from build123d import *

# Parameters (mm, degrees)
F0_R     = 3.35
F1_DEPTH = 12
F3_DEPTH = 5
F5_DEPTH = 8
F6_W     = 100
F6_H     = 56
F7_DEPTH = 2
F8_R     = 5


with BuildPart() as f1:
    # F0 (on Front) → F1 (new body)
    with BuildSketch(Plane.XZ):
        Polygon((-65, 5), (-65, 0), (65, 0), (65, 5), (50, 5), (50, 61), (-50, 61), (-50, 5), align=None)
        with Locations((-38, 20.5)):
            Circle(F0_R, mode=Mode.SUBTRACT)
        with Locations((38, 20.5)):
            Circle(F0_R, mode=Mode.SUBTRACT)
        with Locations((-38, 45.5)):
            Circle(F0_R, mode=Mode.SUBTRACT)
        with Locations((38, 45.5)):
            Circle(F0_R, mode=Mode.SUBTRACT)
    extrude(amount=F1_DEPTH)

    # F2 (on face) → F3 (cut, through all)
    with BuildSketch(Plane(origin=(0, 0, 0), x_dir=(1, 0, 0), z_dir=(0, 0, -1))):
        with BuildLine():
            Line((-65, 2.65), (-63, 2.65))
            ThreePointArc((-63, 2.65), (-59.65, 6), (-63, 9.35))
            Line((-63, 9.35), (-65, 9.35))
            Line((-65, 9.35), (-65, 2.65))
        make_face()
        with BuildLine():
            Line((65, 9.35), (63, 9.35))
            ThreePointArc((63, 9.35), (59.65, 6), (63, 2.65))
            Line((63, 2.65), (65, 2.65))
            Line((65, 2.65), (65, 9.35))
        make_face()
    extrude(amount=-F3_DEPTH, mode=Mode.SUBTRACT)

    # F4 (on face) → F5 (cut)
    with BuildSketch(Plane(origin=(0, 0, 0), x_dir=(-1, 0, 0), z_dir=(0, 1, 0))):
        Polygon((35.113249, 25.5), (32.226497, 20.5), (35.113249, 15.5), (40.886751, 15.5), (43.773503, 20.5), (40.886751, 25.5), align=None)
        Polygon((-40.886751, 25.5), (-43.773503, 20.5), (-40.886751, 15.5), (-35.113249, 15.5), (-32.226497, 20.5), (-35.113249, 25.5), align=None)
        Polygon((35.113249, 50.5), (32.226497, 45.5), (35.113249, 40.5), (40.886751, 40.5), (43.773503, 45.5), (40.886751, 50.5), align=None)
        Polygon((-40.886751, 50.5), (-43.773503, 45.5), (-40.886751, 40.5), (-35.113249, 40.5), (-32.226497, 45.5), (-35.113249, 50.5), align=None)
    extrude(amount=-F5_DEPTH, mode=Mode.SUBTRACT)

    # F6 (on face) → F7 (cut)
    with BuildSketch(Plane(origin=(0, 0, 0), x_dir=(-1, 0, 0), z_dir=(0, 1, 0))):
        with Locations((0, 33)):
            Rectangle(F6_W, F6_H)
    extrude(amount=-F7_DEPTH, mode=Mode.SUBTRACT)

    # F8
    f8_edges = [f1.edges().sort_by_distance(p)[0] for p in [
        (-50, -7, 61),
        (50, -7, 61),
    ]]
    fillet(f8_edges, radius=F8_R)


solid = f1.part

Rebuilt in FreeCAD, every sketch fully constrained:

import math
import FreeCAD as App
import Part
import Sketcher
Q = App.Units.Quantity


def edges_at(feature, points):
    """Names of the edges that pass closest to the given points."""
    edges = feature.Shape.Edges
    near = lambda p: min(range(len(edges)), key=lambda i: edges[i].distToShape(Part.Vertex(*p))[0])
    return sorted({f"Edge{near(p) + 1}" for p in points})

doc = App.newDocument("Part")
params = doc.addObject("Spreadsheet::Sheet", "Params")
for row, (alias, value) in enumerate([
    ("sketch1_diameter", "6.7 mm"),
    ("sketch1_width", "130 mm"),
    ("sketch1_width2", "15 mm"),
    ("sketch1_height", "5 mm"),
    ("sketch1_height2", "56 mm"),
    ("pad1_length", "12 mm"),
    ("sketch2_width", "2 mm"),
    ("sketch2_radius", "3.35 mm"),
    ("pocket2_length", "8 mm"),
    ("sketch4_width", "100 mm"),
    ("sketch4_height", "56 mm"),
    ("pocket3_length", "2 mm"),
    ("fillet_radius", "5 mm"),
], start=1):
    params.set(f"A{row}", alias)
    params.set(f"B{row}", "=" + value)
    params.setAlias(f"B{row}", alias)

body = doc.addObject("PartDesign::Body", "Body")

# Sketch on XZ plane
sketch1 = body.newObject("Sketcher::SketchObject", "Sketch")
sketch1.AttachmentSupport = (doc.getObject("XZ_Plane"), [""])
sketch1.MapMode = "FlatFace"
sketch1.addGeometry(Part.LineSegment(App.Vector(-65, 5, 0), App.Vector(-65, 0, 0)), False)
sketch1.addGeometry(Part.LineSegment(App.Vector(-65, 0, 0), App.Vector(65, 0, 0)), False)
sketch1.addGeometry(Part.LineSegment(App.Vector(65, 0, 0), App.Vector(65, 5, 0)), False)
sketch1.addGeometry(Part.LineSegment(App.Vector(65, 5, 0), App.Vector(50, 5, 0)), False)
sketch1.addGeometry(Part.LineSegment(App.Vector(50, 5, 0), App.Vector(50, 61, 0)), False)
sketch1.addGeometry(Part.LineSegment(App.Vector(50, 61, 0), App.Vector(-50, 61, 0)), False)
sketch1.addGeometry(Part.LineSegment(App.Vector(-50, 61, 0), App.Vector(-50, 5, 0)), False)
sketch1.addGeometry(Part.LineSegment(App.Vector(-50, 5, 0), App.Vector(-65, 5, 0)), False)
sketch1.addGeometry(Part.Circle(App.Vector(-38, 20.5, 0), App.Vector(0, 0, 1), 3.4), False)
sketch1.addGeometry(Part.Circle(App.Vector(38, 20.5, 0), App.Vector(0, 0, 1), 3.4), False)
sketch1.addGeometry(Part.Circle(App.Vector(-38, 45.5, 0), App.Vector(0, 0, 1), 3.4), False)
sketch1.addGeometry(Part.Circle(App.Vector(38, 45.5, 0), App.Vector(0, 0, 1), 3.4), False)
sketch1.addConstraint(Sketcher.Constraint("Coincident", 0, 2, 1, 1))
sketch1.addConstraint(Sketcher.Constraint("Coincident", 1, 2, 2, 1))
sketch1.addConstraint(Sketcher.Constraint("Coincident", 2, 2, 3, 1))
sketch1.addConstraint(Sketcher.Constraint("Coincident", 3, 2, 4, 1))
sketch1.addConstraint(Sketcher.Constraint("Coincident", 4, 2, 5, 1))
sketch1.addConstraint(Sketcher.Constraint("Coincident", 5, 2, 6, 1))
sketch1.addConstraint(Sketcher.Constraint("Coincident", 6, 2, 7, 1))
sketch1.addConstraint(Sketcher.Constraint("Coincident", 7, 2, 0, 1))
sketch1.addConstraint(Sketcher.Constraint("Vertical", 0))
sketch1.addConstraint(Sketcher.Constraint("Horizontal", 1))
sketch1.addConstraint(Sketcher.Constraint("Vertical", 2))
sketch1.addConstraint(Sketcher.Constraint("Horizontal", 3))
sketch1.addConstraint(Sketcher.Constraint("Vertical", 4))
sketch1.addConstraint(Sketcher.Constraint("Horizontal", 5))
sketch1.addConstraint(Sketcher.Constraint("Vertical", 6))
sketch1.addConstraint(Sketcher.Constraint("Horizontal", 7))
sketch1.addConstraint(Sketcher.Constraint("Equal", 8, 9))
sketch1.addConstraint(Sketcher.Constraint("Equal", 9, 10))
sketch1.addConstraint(Sketcher.Constraint("Equal", 10, 11))
sketch1.addConstraint(Sketcher.Constraint("Symmetric", 0, 2, 1, 2, -1, 1))
sketch1.addConstraint(Sketcher.Constraint("Symmetric", 8, 3, 9, 3, -2))
sketch1.addConstraint(Sketcher.Constraint("Symmetric", 10, 3, 11, 3, -2))
sketch1.addConstraint(Sketcher.Constraint("Symmetric", 3, 2, 6, 2, -2))
sketch1.addConstraint(Sketcher.Constraint("Vertical", 8, 3, 10, 3))
sketch1.addConstraint(Sketcher.Constraint("Diameter", 8, Q("6.7 mm")))
sketch1.addConstraint(Sketcher.Constraint("DistanceX", 1, 1, 1, 2, Q("130 mm")))
sketch1.addConstraint(Sketcher.Constraint("DistanceX", 3, 2, 3, 1, Q("15 mm")))
sketch1.addConstraint(Sketcher.Constraint("DistanceY", 0, 2, 0, 1, Q("5 mm")))
sketch1.addConstraint(Sketcher.Constraint("DistanceY", 4, 1, 4, 2, Q("56 mm")))
sketch1.addConstraint(Sketcher.Constraint("DistanceX", 8, 3, -1, 1, Q("38 mm")))
sketch1.addConstraint(Sketcher.Constraint("DistanceY", 8, 3, 10, 3, Q("25 mm")))
sketch1.addConstraint(Sketcher.Constraint("DistanceY", -1, 1, 8, 3, Q("20.5 mm")))
sketch1.setExpression("Constraints[24]", "Params.sketch1_diameter")
sketch1.setExpression("Constraints[25]", "Params.sketch1_width")
sketch1.setExpression("Constraints[26]", "Params.sketch1_width2")
sketch1.setExpression("Constraints[27]", "Params.sketch1_height")
sketch1.setExpression("Constraints[28]", "Params.sketch1_height2")
pad1 = body.newObject("PartDesign::Pad", "Pad")
pad1.Profile = sketch1
pad1.setExpression("Length", "Params.pad1_length")

# Sketch on XY plane
sketch2 = body.newObject("Sketcher::SketchObject", "Sketch001")
sketch2.AttachmentSupport = (doc.getObject("XY_Plane"), [""])
sketch2.MapMode = "FlatFace"
sketch2.addGeometry(Part.LineSegment(App.Vector(-65, -2.6, 0), App.Vector(-63, -2.6, 0)), False)
sketch2.addGeometry(Part.ArcOfCircle(Part.Circle(App.Vector(-63, -6, 0), App.Vector(0, 0, 1), 3.4), math.radians(-90), math.radians(90)), False)
sketch2.addGeometry(Part.LineSegment(App.Vector(-63, -9.3, 0), App.Vector(-65, -9.3, 0)), False)
sketch2.addGeometry(Part.LineSegment(App.Vector(-65, -9.3, 0), App.Vector(-65, -2.6, 0)), False)
sketch2.addGeometry(Part.LineSegment(App.Vector(65, -9.3, 0), App.Vector(63, -9.3, 0)), False)
sketch2.addGeometry(Part.ArcOfCircle(Part.Circle(App.Vector(63, -6, 0), App.Vector(0, 0, 1), 3.4), math.radians(90), math.radians(270)), False)
sketch2.addGeometry(Part.LineSegment(App.Vector(63, -2.6, 0), App.Vector(65, -2.6, 0)), False)
sketch2.addGeometry(Part.LineSegment(App.Vector(65, -2.6, 0), App.Vector(65, -9.3, 0)), False)
sketch2.addConstraint(Sketcher.Constraint("Tangent", 0, 2, 1, 2))
sketch2.addConstraint(Sketcher.Constraint("Tangent", 1, 1, 2, 1))
sketch2.addConstraint(Sketcher.Constraint("Coincident", 2, 2, 3, 1))
sketch2.addConstraint(Sketcher.Constraint("Coincident", 3, 2, 0, 1))
sketch2.addConstraint(Sketcher.Constraint("Tangent", 4, 2, 5, 2))
sketch2.addConstraint(Sketcher.Constraint("Tangent", 5, 1, 6, 1))
sketch2.addConstraint(Sketcher.Constraint("Coincident", 6, 2, 7, 1))
sketch2.addConstraint(Sketcher.Constraint("Coincident", 7, 2, 4, 1))
sketch2.addConstraint(Sketcher.Constraint("Horizontal", 0))
sketch2.addConstraint(Sketcher.Constraint("Horizontal", 2))
sketch2.addConstraint(Sketcher.Constraint("Vertical", 3))
sketch2.addConstraint(Sketcher.Constraint("Horizontal", 4))
sketch2.addConstraint(Sketcher.Constraint("Horizontal", 6))
sketch2.addConstraint(Sketcher.Constraint("Vertical", 7))
sketch2.addConstraint(Sketcher.Constraint("Equal", 1, 5))
sketch2.addConstraint(Sketcher.Constraint("Symmetric", 1, 3, 5, 3, -2))
sketch2.addConstraint(Sketcher.Constraint("Equal", 2, 4))
sketch2.addConstraint(Sketcher.Constraint("DistanceX", 0, 1, 0, 2, Q("2 mm")))
sketch2.addConstraint(Sketcher.Constraint("Radius", 1, Q("3.35 mm")))
sketch2.addConstraint(Sketcher.Constraint("DistanceX", 1, 3, -1, 1, Q("63 mm")))
sketch2.addConstraint(Sketcher.Constraint("DistanceY", 1, 3, -1, 1, Q("6 mm")))
sketch2.setExpression("Constraints[17]", "Params.sketch2_width")
sketch2.setExpression("Constraints[18]", "Params.sketch2_radius")
pocket1 = body.newObject("PartDesign::Pocket", "Pocket")
pocket1.Profile = sketch2
pocket1.Type = "ThroughAll"
pocket1.Reversed = True

# Sketch on XZ plane
sketch3 = body.newObject("Sketcher::SketchObject", "Sketch002")
sketch3.AttachmentSupport = (doc.getObject("XZ_Plane"), [""])
sketch3.MapMode = "FlatFace"
sketch3.addGeometry(Part.LineSegment(App.Vector(-35, 26, 0), App.Vector(-32, 20, 0)), False)
sketch3.addGeometry(Part.LineSegment(App.Vector(-32, 20, 0), App.Vector(-35, 16, 0)), False)
sketch3.addGeometry(Part.LineSegment(App.Vector(-35, 16, 0), App.Vector(-41, 16, 0)), False)
sketch3.addGeometry(Part.LineSegment(App.Vector(-41, 16, 0), App.Vector(-44, 20, 0)), False)
sketch3.addGeometry(Part.LineSegment(App.Vector(-44, 20, 0), App.Vector(-41, 26, 0)), False)
sketch3.addGeometry(Part.LineSegment(App.Vector(-41, 26, 0), App.Vector(-35, 26, 0)), False)
sketch3.addGeometry(Part.LineSegment(App.Vector(41, 26, 0), App.Vector(44, 20, 0)), False)
sketch3.addGeometry(Part.LineSegment(App.Vector(44, 20, 0), App.Vector(41, 16, 0)), False)
sketch3.addGeometry(Part.LineSegment(App.Vector(41, 16, 0), App.Vector(35, 16, 0)), False)
sketch3.addGeometry(Part.LineSegment(App.Vector(35, 16, 0), App.Vector(32, 20, 0)), False)
sketch3.addGeometry(Part.LineSegment(App.Vector(32, 20, 0), App.Vector(35, 26, 0)), False)
sketch3.addGeometry(Part.LineSegment(App.Vector(35, 26, 0), App.Vector(41, 26, 0)), False)
sketch3.addGeometry(Part.LineSegment(App.Vector(-35, 50, 0), App.Vector(-32, 46, 0)), False)
sketch3.addGeometry(Part.LineSegment(App.Vector(-32, 46, 0), App.Vector(-35, 40, 0)), False)
sketch3.addGeometry(Part.LineSegment(App.Vector(-35, 40, 0), App.Vector(-41, 40, 0)), False)
sketch3.addGeometry(Part.LineSegment(App.Vector(-41, 40, 0), App.Vector(-44, 46, 0)), False)
sketch3.addGeometry(Part.LineSegment(App.Vector(-44, 46, 0), App.Vector(-41, 50, 0)), False)
sketch3.addGeometry(Part.LineSegment(App.Vector(-41, 50, 0), App.Vector(-35, 50, 0)), False)
sketch3.addGeometry(Part.LineSegment(App.Vector(41, 50, 0), App.Vector(44, 46, 0)), False)
sketch3.addGeometry(Part.LineSegment(App.Vector(44, 46, 0), App.Vector(41, 40, 0)), False)
sketch3.addGeometry(Part.LineSegment(App.Vector(41, 40, 0), App.Vector(35, 40, 0)), False)
sketch3.addGeometry(Part.LineSegment(App.Vector(35, 40, 0), App.Vector(32, 46, 0)), False)
sketch3.addGeometry(Part.LineSegment(App.Vector(32, 46, 0), App.Vector(35, 50, 0)), False)
sketch3.addGeometry(Part.LineSegment(App.Vector(35, 50, 0), App.Vector(41, 50, 0)), False)
sketch3.addConstraint(Sketcher.Constraint("Coincident", 0, 2, 1, 1))
sketch3.addConstraint(Sketcher.Constraint("Coincident", 1, 2, 2, 1))
sketch3.addConstraint(Sketcher.Constraint("Coincident", 2, 2, 3, 1))
sketch3.addConstraint(Sketcher.Constraint("Coincident", 3, 2, 4, 1))
sketch3.addConstraint(Sketcher.Constraint("Coincident", 4, 2, 5, 1))
sketch3.addConstraint(Sketcher.Constraint("Coincident", 5, 2, 0, 1))
sketch3.addConstraint(Sketcher.Constraint("Coincident", 6, 2, 7, 1))
sketch3.addConstraint(Sketcher.Constraint("Coincident", 7, 2, 8, 1))
sketch3.addConstraint(Sketcher.Constraint("Coincident", 8, 2, 9, 1))
sketch3.addConstraint(Sketcher.Constraint("Coincident", 9, 2, 10, 1))
sketch3.addConstraint(Sketcher.Constraint("Coincident", 10, 2, 11, 1))
sketch3.addConstraint(Sketcher.Constraint("Coincident", 11, 2, 6, 1))
sketch3.addConstraint(Sketcher.Constraint("Coincident", 12, 2, 13, 1))
sketch3.addConstraint(Sketcher.Constraint("Coincident", 13, 2, 14, 1))
sketch3.addConstraint(Sketcher.Constraint("Coincident", 14, 2, 15, 1))
sketch3.addConstraint(Sketcher.Constraint("Coincident", 15, 2, 16, 1))
sketch3.addConstraint(Sketcher.Constraint("Coincident", 16, 2, 17, 1))
sketch3.addConstraint(Sketcher.Constraint("Coincident", 17, 2, 12, 1))
sketch3.addConstraint(Sketcher.Constraint("Coincident", 18, 2, 19, 1))
sketch3.addConstraint(Sketcher.Constraint("Coincident", 19, 2, 20, 1))
sketch3.addConstraint(Sketcher.Constraint("Coincident", 20, 2, 21, 1))
sketch3.addConstraint(Sketcher.Constraint("Coincident", 21, 2, 22, 1))
sketch3.addConstraint(Sketcher.Constraint("Coincident", 22, 2, 23, 1))
sketch3.addConstraint(Sketcher.Constraint("Coincident", 23, 2, 18, 1))
sketch3.addConstraint(Sketcher.Constraint("Horizontal", 2))
sketch3.addConstraint(Sketcher.Constraint("Horizontal", 5))
sketch3.addConstraint(Sketcher.Constraint("Horizontal", 8))
sketch3.addConstraint(Sketcher.Constraint("Horizontal", 11))
sketch3.addConstraint(Sketcher.Constraint("Horizontal", 14))
sketch3.addConstraint(Sketcher.Constraint("Horizontal", 17))
sketch3.addConstraint(Sketcher.Constraint("Horizontal", 20))
sketch3.addConstraint(Sketcher.Constraint("Horizontal", 23))
sketch3.addConstraint(Sketcher.Constraint("Symmetric", 3, 2, 6, 2, -2))
sketch3.addConstraint(Sketcher.Constraint("Symmetric", 2, 2, 7, 2, -2))
sketch3.addConstraint(Sketcher.Constraint("Symmetric", 0, 2, 9, 2, -2))
sketch3.addConstraint(Sketcher.Constraint("Symmetric", 5, 2, 10, 2, -2))
sketch3.addConstraint(Sketcher.Constraint("Symmetric", 15, 2, 18, 2, -2))
sketch3.addConstraint(Sketcher.Constraint("Symmetric", 14, 2, 19, 2, -2))
sketch3.addConstraint(Sketcher.Constraint("Symmetric", 12, 2, 21, 2, -2))
sketch3.addConstraint(Sketcher.Constraint("Symmetric", 17, 2, 22, 2, -2))
sketch3.addConstraint(Sketcher.Constraint("Parallel", 0, 3))
sketch3.addConstraint(Sketcher.Constraint("Parallel", 1, 4))
sketch3.addConstraint(Sketcher.Constraint("Parallel", 3, 6))
sketch3.addConstraint(Sketcher.Constraint("Parallel", 4, 7))
sketch3.addConstraint(Sketcher.Constraint("Parallel", 6, 9))
sketch3.addConstraint(Sketcher.Constraint("Parallel", 9, 12))
sketch3.addConstraint(Sketcher.Constraint("Parallel", 10, 13))
sketch3.addConstraint(Sketcher.Constraint("Parallel", 12, 15))
sketch3.addConstraint(Sketcher.Constraint("Parallel", 13, 16))
sketch3.addConstraint(Sketcher.Constraint("Parallel", 15, 18))
sketch3.addConstraint(Sketcher.Constraint("Parallel", 18, 21))
sketch3.addConstraint(Sketcher.Constraint("Horizontal", 0, 2, 3, 2))
sketch3.addConstraint(Sketcher.Constraint("Horizontal", 12, 2, 15, 2))
sketch3.addConstraint(Sketcher.Constraint("Vertical", 2, 2, 4, 2))
sketch3.addConstraint(Sketcher.Constraint("Vertical", 0, 2, 12, 2))
sketch3.addConstraint(Sketcher.Constraint("Vertical", 5, 2, 13, 2))
sketch3.addConstraint(Sketcher.Constraint("Vertical", 4, 2, 14, 2))
sketch3.addConstraint(Sketcher.Constraint("Vertical", 14, 2, 16, 2))
sketch3.addConstraint(Sketcher.Constraint("Angle", 0, Q("-59.999994 deg")))
sketch3.addConstraint(Sketcher.Constraint("DistanceY", 1, 2, 0, 2, Q("5 mm")))
sketch3.addConstraint(Sketcher.Constraint("DistanceX", 0, 2, 6, 2, Q("76 mm")))
sketch3.addConstraint(Sketcher.Constraint("DistanceY", 5, 2, 12, 2, Q("20 mm")))
sketch3.addConstraint(Sketcher.Constraint("DistanceY", -1, 1, 0, 2, Q("20.5 mm")))
sketch3.addConstraint(Sketcher.Constraint("DistanceX", 2, 2, 2, 1, Q("5.773502 mm")))
pocket2 = body.newObject("PartDesign::Pocket", "Pocket001")
pocket2.Profile = sketch3
pocket2.setExpression("Length", "Params.pocket2_length")
pocket2.Reversed = True

# Sketch on XZ plane
sketch4 = body.newObject("Sketcher::SketchObject", "Sketch003")
sketch4.AttachmentSupport = (doc.getObject("XZ_Plane"), [""])
sketch4.MapMode = "FlatFace"
sketch4.addGeometry(Part.LineSegment(App.Vector(50, 61, 0), App.Vector(50, 5, 0)), False)
sketch4.addGeometry(Part.LineSegment(App.Vector(50, 5, 0), App.Vector(-50, 5, 0)), False)
sketch4.addGeometry(Part.LineSegment(App.Vector(-50, 5, 0), App.Vector(-50, 61, 0)), False)
sketch4.addGeometry(Part.LineSegment(App.Vector(-50, 61, 0), App.Vector(50, 61, 0)), False)
sketch4.addConstraint(Sketcher.Constraint("Coincident", 0, 2, 1, 1))
sketch4.addConstraint(Sketcher.Constraint("Coincident", 1, 2, 2, 1))
sketch4.addConstraint(Sketcher.Constraint("Coincident", 2, 2, 3, 1))
sketch4.addConstraint(Sketcher.Constraint("Coincident", 3, 2, 0, 1))
sketch4.addConstraint(Sketcher.Constraint("Vertical", 0))
sketch4.addConstraint(Sketcher.Constraint("Horizontal", 1))
sketch4.addConstraint(Sketcher.Constraint("Vertical", 2))
sketch4.addConstraint(Sketcher.Constraint("Horizontal", 3))
sketch4.addConstraint(Sketcher.Constraint("DistanceX", 1, 2, 1, 1, Q("100 mm")))
sketch4.addConstraint(Sketcher.Constraint("DistanceY", 0, 2, 0, 1, Q("56 mm")))
sketch4.addConstraint(Sketcher.Constraint("DistanceX", -1, 1, 0, 2, Q("50 mm")))
sketch4.addConstraint(Sketcher.Constraint("DistanceY", -1, 1, 0, 2, Q("5 mm")))
sketch4.setExpression("Constraints[8]", "Params.sketch4_width")
sketch4.setExpression("Constraints[9]", "Params.sketch4_height")
pocket3 = body.newObject("PartDesign::Pocket", "Pocket002")
pocket3.Profile = sketch4
pocket3.setExpression("Length", "Params.pocket3_length")
pocket3.Reversed = True
doc.recompute()

fillet = body.newObject("PartDesign::Fillet", "Fillet")
fillet.Base = (pocket3, edges_at(pocket3, [(-50, -7, 61), (50, -7, 61)]))
fillet.setExpression("Radius", "Params.fillet_radius")

doc.recompute()
